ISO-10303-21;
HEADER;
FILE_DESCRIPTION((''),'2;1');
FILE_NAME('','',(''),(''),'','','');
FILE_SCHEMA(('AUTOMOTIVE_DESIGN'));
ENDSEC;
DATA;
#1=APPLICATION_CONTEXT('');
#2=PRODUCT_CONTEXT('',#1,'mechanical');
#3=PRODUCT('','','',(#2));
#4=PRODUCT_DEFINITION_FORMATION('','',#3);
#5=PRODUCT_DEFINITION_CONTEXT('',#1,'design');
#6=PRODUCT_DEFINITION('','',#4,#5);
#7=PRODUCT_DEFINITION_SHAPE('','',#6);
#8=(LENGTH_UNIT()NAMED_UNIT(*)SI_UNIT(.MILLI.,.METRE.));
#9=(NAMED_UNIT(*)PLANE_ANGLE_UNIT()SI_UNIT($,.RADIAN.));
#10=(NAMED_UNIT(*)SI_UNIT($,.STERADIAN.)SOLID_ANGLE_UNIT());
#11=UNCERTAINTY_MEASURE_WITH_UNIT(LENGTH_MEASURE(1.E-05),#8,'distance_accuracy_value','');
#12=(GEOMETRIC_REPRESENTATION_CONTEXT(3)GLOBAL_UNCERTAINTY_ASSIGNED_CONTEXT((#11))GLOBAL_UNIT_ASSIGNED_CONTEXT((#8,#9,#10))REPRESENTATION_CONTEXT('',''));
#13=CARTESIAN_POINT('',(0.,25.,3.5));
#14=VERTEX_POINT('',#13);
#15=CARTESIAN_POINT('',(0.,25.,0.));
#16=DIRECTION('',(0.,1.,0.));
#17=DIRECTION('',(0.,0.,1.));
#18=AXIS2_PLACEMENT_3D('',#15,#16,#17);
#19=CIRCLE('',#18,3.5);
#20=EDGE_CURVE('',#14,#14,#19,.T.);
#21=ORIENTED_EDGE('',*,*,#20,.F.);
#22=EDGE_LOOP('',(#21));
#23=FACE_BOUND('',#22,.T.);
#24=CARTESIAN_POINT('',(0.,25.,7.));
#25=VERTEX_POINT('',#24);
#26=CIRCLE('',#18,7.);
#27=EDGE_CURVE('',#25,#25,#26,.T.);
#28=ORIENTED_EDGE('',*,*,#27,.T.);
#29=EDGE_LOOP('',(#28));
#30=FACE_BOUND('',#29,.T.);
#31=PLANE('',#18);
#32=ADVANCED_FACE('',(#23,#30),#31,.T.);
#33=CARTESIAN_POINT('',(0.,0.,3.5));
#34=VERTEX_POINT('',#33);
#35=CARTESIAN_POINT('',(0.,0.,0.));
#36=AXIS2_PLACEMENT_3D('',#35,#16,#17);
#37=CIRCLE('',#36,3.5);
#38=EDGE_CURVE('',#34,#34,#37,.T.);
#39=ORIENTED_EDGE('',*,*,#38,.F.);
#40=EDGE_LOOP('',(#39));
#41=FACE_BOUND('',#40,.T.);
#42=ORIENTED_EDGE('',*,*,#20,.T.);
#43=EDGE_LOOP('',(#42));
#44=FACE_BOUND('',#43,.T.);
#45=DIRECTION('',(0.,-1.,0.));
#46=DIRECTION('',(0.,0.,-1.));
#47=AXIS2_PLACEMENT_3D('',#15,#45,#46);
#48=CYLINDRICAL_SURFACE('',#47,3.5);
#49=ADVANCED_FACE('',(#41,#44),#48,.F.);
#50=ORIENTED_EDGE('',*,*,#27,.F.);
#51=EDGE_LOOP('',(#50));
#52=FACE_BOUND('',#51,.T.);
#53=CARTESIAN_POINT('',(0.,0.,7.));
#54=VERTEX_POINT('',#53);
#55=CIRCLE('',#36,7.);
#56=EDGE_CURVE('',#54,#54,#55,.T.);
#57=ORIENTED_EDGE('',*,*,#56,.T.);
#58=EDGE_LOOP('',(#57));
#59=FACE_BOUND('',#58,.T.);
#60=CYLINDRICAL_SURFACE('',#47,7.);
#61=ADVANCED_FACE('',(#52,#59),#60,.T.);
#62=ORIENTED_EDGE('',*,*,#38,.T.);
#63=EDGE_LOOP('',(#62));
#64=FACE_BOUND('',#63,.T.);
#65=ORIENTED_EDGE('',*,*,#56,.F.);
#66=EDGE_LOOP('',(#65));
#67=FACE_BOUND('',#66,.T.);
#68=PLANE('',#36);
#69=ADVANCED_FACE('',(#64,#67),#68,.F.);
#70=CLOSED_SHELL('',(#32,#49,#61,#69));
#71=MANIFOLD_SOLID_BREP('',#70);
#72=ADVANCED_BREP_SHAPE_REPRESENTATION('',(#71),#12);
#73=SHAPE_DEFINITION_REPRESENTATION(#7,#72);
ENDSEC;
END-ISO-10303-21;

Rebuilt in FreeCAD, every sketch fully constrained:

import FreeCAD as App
import Part
import Sketcher
from FreeCAD import Vector

doc = App.newDocument("Part")
body = doc.addObject("PartDesign::Body", "Body")

# Sketch on XZ plane
sketch1 = body.newObject("Sketcher::SketchObject", "Sketch")
sketch1.AttachmentSupport = (doc.getObject("XZ_Plane"), [""])
sketch1.MapMode = "FlatFace"
sketch1.addGeometry([
    Part.Circle(Vector(0, 0, 0), Vector(0, 0, 1), 7),
    Part.Circle(Vector(0, 0, 0), Vector(0, 0, 1), 3.5),
], False)
sketch1.addConstraint([
    Sketcher.Constraint("Coincident", 0, 3, -1, 1),
    Sketcher.Constraint("Coincident", 1, 3, -1, 1),
    Sketcher.Constraint("Diameter", 0, 14.0),
    Sketcher.Constraint("Diameter", 1, 7.0),
])
pad1 = body.newObject("PartDesign::Pad", "Pad")
pad1.Profile = sketch1
pad1.Length = 25
pad1.Reversed = True

doc.recompute()
